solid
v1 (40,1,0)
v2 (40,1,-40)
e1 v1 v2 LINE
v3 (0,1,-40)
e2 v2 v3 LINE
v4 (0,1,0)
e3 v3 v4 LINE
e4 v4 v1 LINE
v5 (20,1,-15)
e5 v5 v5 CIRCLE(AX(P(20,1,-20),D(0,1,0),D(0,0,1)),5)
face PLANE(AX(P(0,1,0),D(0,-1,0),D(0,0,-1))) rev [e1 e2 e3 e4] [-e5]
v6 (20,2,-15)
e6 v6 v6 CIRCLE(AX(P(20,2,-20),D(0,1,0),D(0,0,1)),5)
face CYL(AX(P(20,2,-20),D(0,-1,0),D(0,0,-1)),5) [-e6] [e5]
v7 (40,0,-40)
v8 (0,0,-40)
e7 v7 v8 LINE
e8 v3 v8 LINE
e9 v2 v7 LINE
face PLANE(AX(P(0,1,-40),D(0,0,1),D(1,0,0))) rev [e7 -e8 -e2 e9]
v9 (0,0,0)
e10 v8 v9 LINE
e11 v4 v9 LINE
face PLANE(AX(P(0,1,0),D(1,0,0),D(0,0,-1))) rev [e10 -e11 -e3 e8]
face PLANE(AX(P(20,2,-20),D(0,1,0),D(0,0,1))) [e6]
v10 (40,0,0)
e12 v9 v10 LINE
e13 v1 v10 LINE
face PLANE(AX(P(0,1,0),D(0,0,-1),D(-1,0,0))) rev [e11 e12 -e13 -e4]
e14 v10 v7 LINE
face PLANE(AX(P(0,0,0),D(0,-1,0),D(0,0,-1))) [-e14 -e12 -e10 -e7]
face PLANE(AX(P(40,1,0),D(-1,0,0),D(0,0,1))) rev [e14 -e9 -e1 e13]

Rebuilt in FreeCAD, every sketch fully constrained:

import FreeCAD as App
import Part
import Sketcher

V = App.Vector

doc = App.newDocument("Part")
body = doc.addObject("PartDesign::Body", "Body")

# Sketch on XZ plane
sketch1 = body.newObject("Sketcher::SketchObject", "Sketch")
sketch1.AttachmentSupport = (doc.getObject("XZ_Plane"), [""])
sketch1.MapMode = "FlatFace"
sketch1.addGeometry(Part.LineSegment(V(0, -40, 0), V(0, 0, 0)), False)
sketch1.addGeometry(Part.LineSegment(V(0, 0, 0), V(40, 0, 0)), False)
sketch1.addGeometry(Part.LineSegment(V(40, 0, 0), V(40, -40, 0)), False)
sketch1.addGeometry(Part.LineSegment(V(40, -40, 0), V(0, -40, 0)), False)
sketch1.addConstraint(Sketcher.Constraint("Coincident", 0, 2, 1, 1))
sketch1.addConstraint(Sketcher.Constraint("Coincident", 1, 2, 2, 1))
sketch1.addConstraint(Sketcher.Constraint("Coincident", 2, 2, 3, 1))
sketch1.addConstraint(Sketcher.Constraint("Coincident", 3, 2, 0, 1))
sketch1.addConstraint(Sketcher.Constraint("Vertical", 0))
sketch1.addConstraint(Sketcher.Constraint("Horizontal", 1))
sketch1.addConstraint(Sketcher.Constraint("Vertical", 2))
sketch1.addConstraint(Sketcher.Constraint("Horizontal", 3))
sketch1.addConstraint(Sketcher.Constraint("Coincident", 0, 2, -1, 1))
sketch1.addConstraint(Sketcher.Constraint("Equal", 3, 0))
sketch1.addConstraint(Sketcher.Constraint("DistanceX", 1, 1, 1, 2, 40.0))
pad1 = body.newObject("PartDesign::Pad", "Pad")
pad1.Profile = sketch1
pad1.Length = 1
pad1.Reversed = True

# Sketch on XZ plane
sketch2 = body.newObject("Sketcher::SketchObject", "Sketch001")
sketch2.AttachmentSupport = (doc.getObject("XZ_Plane"), [""])
sketch2.MapMode = "FlatFace"
sketch2.AttachmentOffset = App.Placement(V(0, 0, -1), App.Rotation())
sketch2.addGeometry(Part.Circle(V(20, -20, 0), V(0, 0, 1), 5), False)
sketch2.addConstraint(Sketcher.Constraint("Diameter", 0, 10.0))
sketch2.addConstraint(Sketcher.Constraint("DistanceX", -1, 1, 0, 3, 20.0))
sketch2.addConstraint(Sketcher.Constraint("DistanceY", 0, 3, -1, 1, 20.0))
pad2 = body.newObject("PartDesign::Pad", "Pad001")
pad2.Profile = sketch2
pad2.Length = 1
pad2.Reversed = True

doc.recompute()
